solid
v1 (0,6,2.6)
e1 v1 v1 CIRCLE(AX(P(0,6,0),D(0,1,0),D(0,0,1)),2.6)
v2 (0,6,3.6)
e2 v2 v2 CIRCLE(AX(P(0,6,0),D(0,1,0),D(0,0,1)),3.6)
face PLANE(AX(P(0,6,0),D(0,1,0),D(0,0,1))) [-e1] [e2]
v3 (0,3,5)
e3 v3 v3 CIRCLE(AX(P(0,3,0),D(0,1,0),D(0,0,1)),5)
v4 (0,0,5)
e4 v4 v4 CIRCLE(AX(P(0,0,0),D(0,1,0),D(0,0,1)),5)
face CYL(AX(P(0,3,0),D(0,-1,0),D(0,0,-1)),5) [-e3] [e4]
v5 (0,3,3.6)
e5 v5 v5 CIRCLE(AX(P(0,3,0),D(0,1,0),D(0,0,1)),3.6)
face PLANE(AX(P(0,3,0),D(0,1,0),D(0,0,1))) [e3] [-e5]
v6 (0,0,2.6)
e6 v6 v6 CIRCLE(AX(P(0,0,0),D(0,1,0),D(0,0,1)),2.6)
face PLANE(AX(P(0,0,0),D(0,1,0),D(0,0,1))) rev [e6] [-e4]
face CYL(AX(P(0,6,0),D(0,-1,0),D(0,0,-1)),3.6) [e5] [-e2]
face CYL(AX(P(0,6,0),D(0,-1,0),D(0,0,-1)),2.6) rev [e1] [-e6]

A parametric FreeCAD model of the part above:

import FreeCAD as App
import Part
import Sketcher
Q = App.Units.Quantity

doc = App.newDocument("Part")
body = doc.addObject("PartDesign::Body", "Body")

# Sketch on XZ plane
sketch1 = body.newObject("Sketcher::SketchObject", "Sketch")
sketch1.AttachmentSupport = (doc.getObject("XZ_Plane"), [""])
sketch1.MapMode = "FlatFace"
sketch1.addGeometry(Part.Circle(App.Vector(0, 0, 0), App.Vector(0, 0, 1), 5), False)
sketch1.addConstraint(Sketcher.Constraint("Coincident", 0, 3, -1, 1))
sketch1.addConstraint(Sketcher.Constraint("Diameter", 0, Q("10 mm")))
pad1 = body.newObject("PartDesign::Pad", "Pad")
pad1.Profile = sketch1
pad1.Length = 3
pad1.Reversed = True

# Sketch on XZ plane
sketch2 = body.newObject("Sketcher::SketchObject", "Sketch001")
sketch2.AttachmentSupport = (doc.getObject("XZ_Plane"), [""])
sketch2.MapMode = "FlatFace"
sketch2.AttachmentOffset = App.Placement(App.Vector(0, 0, -3), App.Rotation())
sketch2.addGeometry(Part.Circle(App.Vector(0, 0, 0), App.Vector(0, 0, 1), 3.6), False)
sketch2.addConstraint(Sketcher.Constraint("Coincident", 0, 3, -1, 1))
sketch2.addConstraint(Sketcher.Constraint("Diameter", 0, Q("7.2 mm")))
pad2 = body.newObject("PartDesign::Pad", "Pad001")
pad2.Profile = sketch2
pad2.Length = 3
pad2.Reversed = True

# Sketch on XZ plane
sketch3 = body.newObject("Sketcher::SketchObject", "Sketch002")
sketch3.AttachmentSupport = (doc.getObject("XZ_Plane"), [""])
sketch3.MapMode = "FlatFace"
sketch3.addGeometry(Part.Circle(App.Vector(0, 0, 0), App.Vector(0, 0, 1), 2.6), False)
sketch3.addConstraint(Sketcher.Constraint("Coincident", 0, 3, -1, 1))
sketch3.addConstraint(Sketcher.Constraint("Diameter", 0, Q("5.2 mm")))
pocket1 = body.newObject("PartDesign::Pocket", "Pocket")
pocket1.Profile = sketch3
pocket1.Type = "ThroughAll"

doc.recompute()
